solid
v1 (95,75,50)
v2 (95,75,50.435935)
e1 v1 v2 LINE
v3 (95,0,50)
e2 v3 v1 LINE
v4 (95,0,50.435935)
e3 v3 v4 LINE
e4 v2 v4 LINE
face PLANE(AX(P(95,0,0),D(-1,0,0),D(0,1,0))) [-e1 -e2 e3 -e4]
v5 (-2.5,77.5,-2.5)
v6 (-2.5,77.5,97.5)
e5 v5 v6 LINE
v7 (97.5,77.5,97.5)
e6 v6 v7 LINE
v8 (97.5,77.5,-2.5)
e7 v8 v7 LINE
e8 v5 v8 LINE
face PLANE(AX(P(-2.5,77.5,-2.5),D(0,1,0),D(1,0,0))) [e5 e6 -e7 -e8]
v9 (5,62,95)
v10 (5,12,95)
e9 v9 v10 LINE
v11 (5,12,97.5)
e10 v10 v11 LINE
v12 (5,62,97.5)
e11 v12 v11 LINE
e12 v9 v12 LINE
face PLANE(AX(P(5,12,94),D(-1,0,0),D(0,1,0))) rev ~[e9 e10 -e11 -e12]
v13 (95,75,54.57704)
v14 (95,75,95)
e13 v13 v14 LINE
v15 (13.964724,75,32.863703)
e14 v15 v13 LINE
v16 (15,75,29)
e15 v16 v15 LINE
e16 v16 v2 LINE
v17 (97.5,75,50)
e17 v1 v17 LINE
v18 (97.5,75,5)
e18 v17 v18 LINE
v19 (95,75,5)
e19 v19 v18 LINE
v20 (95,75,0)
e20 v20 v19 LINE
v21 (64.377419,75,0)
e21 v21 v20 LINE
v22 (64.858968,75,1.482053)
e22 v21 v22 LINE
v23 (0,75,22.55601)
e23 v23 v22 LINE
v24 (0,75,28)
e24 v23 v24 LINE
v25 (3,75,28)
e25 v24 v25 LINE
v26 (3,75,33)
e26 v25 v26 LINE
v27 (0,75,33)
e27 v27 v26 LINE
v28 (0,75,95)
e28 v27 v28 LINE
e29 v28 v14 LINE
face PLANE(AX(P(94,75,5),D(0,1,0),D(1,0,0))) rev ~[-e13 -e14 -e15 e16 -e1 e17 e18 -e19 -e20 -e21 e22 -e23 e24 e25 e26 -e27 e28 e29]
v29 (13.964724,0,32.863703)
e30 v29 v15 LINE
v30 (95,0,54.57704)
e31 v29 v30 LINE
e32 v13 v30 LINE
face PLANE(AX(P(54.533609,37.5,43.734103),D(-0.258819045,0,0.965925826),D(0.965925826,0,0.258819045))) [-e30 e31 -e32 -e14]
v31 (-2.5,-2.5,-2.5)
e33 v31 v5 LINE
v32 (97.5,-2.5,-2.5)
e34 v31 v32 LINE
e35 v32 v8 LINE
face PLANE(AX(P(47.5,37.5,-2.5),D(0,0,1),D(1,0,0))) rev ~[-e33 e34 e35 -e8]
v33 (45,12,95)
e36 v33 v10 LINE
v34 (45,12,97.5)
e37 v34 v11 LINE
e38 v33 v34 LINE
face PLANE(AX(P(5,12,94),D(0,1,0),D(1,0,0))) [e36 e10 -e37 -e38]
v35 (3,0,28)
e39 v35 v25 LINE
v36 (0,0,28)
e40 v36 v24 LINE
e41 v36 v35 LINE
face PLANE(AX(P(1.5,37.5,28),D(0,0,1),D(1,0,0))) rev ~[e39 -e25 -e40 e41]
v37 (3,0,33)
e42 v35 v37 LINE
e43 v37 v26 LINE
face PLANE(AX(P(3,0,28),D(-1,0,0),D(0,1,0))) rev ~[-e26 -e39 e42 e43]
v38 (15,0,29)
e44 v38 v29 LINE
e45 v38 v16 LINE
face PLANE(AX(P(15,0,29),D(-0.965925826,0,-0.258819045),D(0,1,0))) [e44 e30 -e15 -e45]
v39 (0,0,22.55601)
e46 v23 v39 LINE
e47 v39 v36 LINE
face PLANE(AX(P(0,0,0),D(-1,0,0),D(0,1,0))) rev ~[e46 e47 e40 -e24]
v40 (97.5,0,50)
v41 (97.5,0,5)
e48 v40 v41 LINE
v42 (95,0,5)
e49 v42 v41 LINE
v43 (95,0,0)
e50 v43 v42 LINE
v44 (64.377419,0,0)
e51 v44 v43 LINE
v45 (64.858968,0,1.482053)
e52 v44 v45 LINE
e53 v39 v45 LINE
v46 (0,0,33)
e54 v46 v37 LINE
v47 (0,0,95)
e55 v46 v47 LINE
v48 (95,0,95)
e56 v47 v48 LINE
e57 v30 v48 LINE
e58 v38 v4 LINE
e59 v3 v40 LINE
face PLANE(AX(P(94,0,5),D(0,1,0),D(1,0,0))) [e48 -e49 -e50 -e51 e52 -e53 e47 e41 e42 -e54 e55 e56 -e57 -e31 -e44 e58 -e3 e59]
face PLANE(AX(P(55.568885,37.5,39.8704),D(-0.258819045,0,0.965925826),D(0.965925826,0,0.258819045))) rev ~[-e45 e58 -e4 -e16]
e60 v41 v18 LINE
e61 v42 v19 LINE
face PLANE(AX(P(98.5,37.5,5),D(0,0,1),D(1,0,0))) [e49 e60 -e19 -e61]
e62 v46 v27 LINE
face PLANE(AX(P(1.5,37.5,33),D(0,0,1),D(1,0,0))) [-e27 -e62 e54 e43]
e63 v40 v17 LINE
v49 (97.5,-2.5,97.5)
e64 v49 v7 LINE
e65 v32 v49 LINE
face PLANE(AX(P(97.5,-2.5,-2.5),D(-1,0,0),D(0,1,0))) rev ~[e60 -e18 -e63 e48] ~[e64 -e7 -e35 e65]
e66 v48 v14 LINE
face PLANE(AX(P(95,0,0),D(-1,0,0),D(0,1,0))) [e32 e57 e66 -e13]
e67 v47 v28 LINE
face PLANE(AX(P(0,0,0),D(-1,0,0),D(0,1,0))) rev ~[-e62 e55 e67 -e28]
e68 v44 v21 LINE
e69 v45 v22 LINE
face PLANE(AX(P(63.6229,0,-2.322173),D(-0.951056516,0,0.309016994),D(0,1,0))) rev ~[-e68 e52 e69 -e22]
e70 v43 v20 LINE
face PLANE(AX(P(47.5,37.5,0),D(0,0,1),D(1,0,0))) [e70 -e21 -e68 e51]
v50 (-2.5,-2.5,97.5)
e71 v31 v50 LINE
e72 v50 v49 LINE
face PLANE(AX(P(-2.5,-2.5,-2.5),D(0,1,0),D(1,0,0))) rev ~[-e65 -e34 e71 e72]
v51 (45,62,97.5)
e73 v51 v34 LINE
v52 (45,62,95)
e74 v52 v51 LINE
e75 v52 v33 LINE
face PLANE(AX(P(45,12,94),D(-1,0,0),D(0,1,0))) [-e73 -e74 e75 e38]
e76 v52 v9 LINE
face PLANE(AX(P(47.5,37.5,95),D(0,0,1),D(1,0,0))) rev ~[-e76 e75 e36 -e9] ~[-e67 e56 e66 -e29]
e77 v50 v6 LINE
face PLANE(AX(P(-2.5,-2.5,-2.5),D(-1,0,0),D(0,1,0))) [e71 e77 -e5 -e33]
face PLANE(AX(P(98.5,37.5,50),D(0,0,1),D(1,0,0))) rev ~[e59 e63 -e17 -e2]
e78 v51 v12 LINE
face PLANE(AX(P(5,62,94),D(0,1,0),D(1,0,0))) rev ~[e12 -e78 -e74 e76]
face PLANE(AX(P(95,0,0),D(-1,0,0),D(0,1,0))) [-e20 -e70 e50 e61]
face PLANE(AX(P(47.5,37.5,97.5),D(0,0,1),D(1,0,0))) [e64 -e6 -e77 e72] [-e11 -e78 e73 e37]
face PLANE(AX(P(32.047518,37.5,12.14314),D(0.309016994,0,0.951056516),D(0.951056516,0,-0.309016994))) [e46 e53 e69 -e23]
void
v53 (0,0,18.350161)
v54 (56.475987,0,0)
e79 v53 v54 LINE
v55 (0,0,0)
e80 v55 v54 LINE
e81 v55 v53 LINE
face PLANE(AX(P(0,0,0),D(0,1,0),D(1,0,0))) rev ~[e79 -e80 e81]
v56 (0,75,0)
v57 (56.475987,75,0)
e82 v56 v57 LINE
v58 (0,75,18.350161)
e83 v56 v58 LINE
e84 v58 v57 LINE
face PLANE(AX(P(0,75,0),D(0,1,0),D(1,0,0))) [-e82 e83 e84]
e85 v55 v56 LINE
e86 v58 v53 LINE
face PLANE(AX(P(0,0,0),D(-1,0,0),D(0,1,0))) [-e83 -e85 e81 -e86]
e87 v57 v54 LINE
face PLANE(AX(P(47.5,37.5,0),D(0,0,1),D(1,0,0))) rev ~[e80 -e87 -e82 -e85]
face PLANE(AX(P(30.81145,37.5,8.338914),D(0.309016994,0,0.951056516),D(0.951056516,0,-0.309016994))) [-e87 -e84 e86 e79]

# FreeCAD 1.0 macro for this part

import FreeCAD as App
import Part
import Sketcher

doc = App.newDocument("Part")
body = doc.addObject("PartDesign::Body", "Body")

sketch1 = body.newObject("Sketcher::SketchObject", "Sketch")
sketch1.AttachmentSupport = (doc.getObject("XY_Plane"), [""])
sketch1.MapMode = "FlatFace"
sketch1.AttachmentOffset = App.Placement(App.Vector(0, 0, 5), App.Rotation())
sketch1.addGeometry([
    Part.LineSegment(App.Vector(94, 75, 0), App.Vector(94, 0, 0)),
    Part.LineSegment(App.Vector(94, 0, 0), App.Vector(103, 0, 0)),
    Part.LineSegment(App.Vector(103, 0, 0), App.Vector(103, 75, 0)),
    Part.LineSegment(App.Vector(103, 75, 0), App.Vector(94, 75, 0)),
], False)
sketch1.addConstraint([
    Sketcher.Constraint("Coincident", 0, 2, 1, 1),
    Sketcher.Constraint("Coincident", 1, 2, 2, 1),
    Sketcher.Constraint("Coincident", 2, 2, 3, 1),
    Sketcher.Constraint("Coincident", 3, 2, 0, 1),
    Sketcher.Constraint("Vertical", 0),
    Sketcher.Constraint("Horizontal", 1),
    Sketcher.Constraint("Vertical", 2),
    Sketcher.Constraint("Horizontal", 3),
    Sketcher.Constraint("PointOnObject", 0, 2, -1),
    Sketcher.Constraint("DistanceX", 1, 1, 1, 2, 9.0),
    Sketcher.Constraint("DistanceY", 0, 2, 0, 1, 75.0),
    Sketcher.Constraint("DistanceX", -1, 1, 0, 2, 94.0),
])
pad1 = body.newObject("PartDesign::Pad", "Pad")
pad1.Profile = sketch1
pad1.Length = 45
body2 = doc.addObject("PartDesign::Body", "Body001")

sketch2 = body2.newObject("Sketcher::SketchObject", "Sketch001")
sketch2.AttachmentSupport = (doc.getObject("XY_Plane001"), [""])
sketch2.MapMode = "FlatFace"
sketch2.AttachmentOffset = App.Placement(App.Vector(0, 0, 94), App.Rotation())
sketch2.addGeometry([
    Part.LineSegment(App.Vector(5, 62, 0), App.Vector(5, 12, 0)),
    Part.LineSegment(App.Vector(5, 12, 0), App.Vector(45, 12, 0)),
    Part.LineSegment(App.Vector(45, 12, 0), App.Vector(45, 62, 0)),
    Part.LineSegment(App.Vector(45, 62, 0), App.Vector(5, 62, 0)),
], False)
sketch2.addConstraint([
    Sketcher.Constraint("Coincident", 0, 2, 1, 1),
    Sketcher.Constraint("Coincident", 1, 2, 2, 1),
    Sketcher.Constraint("Coincident", 2, 2, 3, 1),
    Sketcher.Constraint("Coincident", 3, 2, 0, 1),
    Sketcher.Constraint("Vertical", 0),
    Sketcher.Constraint("Horizontal", 1),
    Sketcher.Constraint("Vertical", 2),
    Sketcher.Constraint("Horizontal", 3),
    Sketcher.Constraint("DistanceX", 1, 1, 1, 2, 40.0),
    Sketcher.Constraint("DistanceY", 0, 2, 0, 1, 50.0),
    Sketcher.Constraint("DistanceX", -1, 1, 0, 2, 5.0),
    Sketcher.Constraint("DistanceY", -1, 1, 0, 2, 12.0),
])
pad2 = body2.newObject("PartDesign::Pad", "Pad001")
pad2.Profile = sketch2
pad2.Length = 5
body3 = doc.addObject("PartDesign::Body", "Body002")

sketch3 = body3.newObject("Sketcher::SketchObject", "Sketch002")
sketch3.AttachmentSupport = (doc.getObject("XY_Plane002"), [""])
sketch3.MapMode = "FlatFace"
sketch3.addGeometry([
    Part.LineSegment(App.Vector(0, 75, 0), App.Vector(0, 0, 0)),
    Part.LineSegment(App.Vector(0, 0, 0), App.Vector(95, 0, 0)),
    Part.LineSegment(App.Vector(95, 0, 0), App.Vector(95, 75, 0)),
    Part.LineSegment(App.Vector(95, 75, 0), App.Vector(0, 75, 0)),
], False)
sketch3.addConstraint([
    Sketcher.Constraint("Coincident", 0, 2, 1, 1),
    Sketcher.Constraint("Coincident", 1, 2, 2, 1),
    Sketcher.Constraint("Coincident", 2, 2, 3, 1),
    Sketcher.Constraint("Coincident", 3, 2, 0, 1),
    Sketcher.Constraint("Vertical", 0),
    Sketcher.Constraint("Horizontal", 1),
    Sketcher.Constraint("Vertical", 2),
    Sketcher.Constraint("Horizontal", 3),
    Sketcher.Constraint("Coincident", 0, 2, -1, 1),
    Sketcher.Constraint("DistanceX", 1, 1, 1, 2, 95.0),
    Sketcher.Constraint("DistanceY", 0, 2, 0, 1, 75.0),
])
pad3 = body3.newObject("PartDesign::Pad", "Pad002")
pad3.Profile = sketch3
pad3.Length = 95
body4 = doc.addObject("PartDesign::Body", "Body003")

sketch4 = body4.newObject("Sketcher::SketchObject", "Sketch003")
sketch4.AttachmentSupport = (doc.getObject("XY_Plane003"), [""])
sketch4.MapMode = "FlatFace"
sketch4.AttachmentOffset = App.Placement(App.Vector(0, 0, -2.5), App.Rotation())
sketch4.addGeometry([
    Part.LineSegment(App.Vector(-2, 78, 0), App.Vector(-2, -2, 0)),
    Part.LineSegment(App.Vector(-2, -2, 0), App.Vector(98, -2, 0)),
    Part.LineSegment(App.Vector(98, -2, 0), App.Vector(98, 78, 0)),
    Part.LineSegment(App.Vector(98, 78, 0), App.Vector(-2, 78, 0)),
], False)
sketch4.addConstraint([
    Sketcher.Constraint("Coincident", 0, 2, 1, 1),
    Sketcher.Constraint("Coincident", 1, 2, 2, 1),
    Sketcher.Constraint("Coincident", 2, 2, 3, 1),
    Sketcher.Constraint("Coincident", 3, 2, 0, 1),
    Sketcher.Constraint("Vertical", 0),
    Sketcher.Constraint("Horizontal", 1),
    Sketcher.Constraint("Vertical", 2),
    Sketcher.Constraint("Horizontal", 3),
    Sketcher.Constraint("DistanceX", 1, 1, 1, 2, 100.0),
    Sketcher.Constraint("DistanceY", 0, 2, 0, 1, 80.0),
    Sketcher.Constraint("DistanceX", 0, 2, -1, 1, 2.5),
    Sketcher.Constraint("DistanceY", 0, 2, -1, 1, 2.5),
])
pad4 = body4.newObject("PartDesign::Pad", "Pad003")
pad4.Profile = sketch4
pad4.Length = 100
doc.recompute()

boolean = body4.newObject("PartDesign::Boolean", "Boolean")
boolean.Type = "Cut"
boolean.addObjects([body3])
doc.recompute()

boolean2 = body4.newObject("PartDesign::Boolean", "Boolean001")
boolean2.Type = "Cut"
boolean2.addObjects([body2])
body5 = doc.addObject("PartDesign::Body", "Body004")

sketch5 = body5.newObject("Sketcher::SketchObject", "Sketch004")
sketch5.AttachmentSupport = (doc.getObject("XY_Plane004"), [""])
sketch5.MapMode = "FlatFace"
sketch5.addGeometry([
    Part.LineSegment(App.Vector(0, 75, 0), App.Vector(0, 0, 0)),
    Part.LineSegment(App.Vector(0, 0, 0), App.Vector(84, 0, 0)),
    Part.LineSegment(App.Vector(84, 0, 0), App.Vector(84, 75, 0)),
    Part.LineSegment(App.Vector(84, 75, 0), App.Vector(0, 75, 0)),
], False)
sketch5.addConstraint([
    Sketcher.Constraint("Coincident", 0, 2, 1, 1),
    Sketcher.Constraint("Coincident", 1, 2, 2, 1),
    Sketcher.Constraint("Coincident", 2, 2, 3, 1),
    Sketcher.Constraint("Coincident", 3, 2, 0, 1),
    Sketcher.Constraint("Vertical", 0),
    Sketcher.Constraint("Horizontal", 1),
    Sketcher.Constraint("Vertical", 2),
    Sketcher.Constraint("Horizontal", 3),
    Sketcher.Constraint("Coincident", 0, 2, -1, 1),
    Sketcher.Constraint("DistanceX", 1, 1, 1, 2, 84.0),
    Sketcher.Constraint("DistanceY", 0, 2, 0, 1, 75.0),
])
pad5 = body5.newObject("PartDesign::Pad", "Pad004")
pad5.Profile = sketch5
pad5.Length = 4
body6 = doc.addObject("PartDesign::Body", "Body005")
doc.recompute()

body5.Placement = App.Placement(App.Vector(0, 0, 0), App.Rotation(App.Vector(0, 1, 0), 345))
boolean3 = body6.newObject("PartDesign::Boolean", "Boolean002")
boolean3.Type = "Fuse"
boolean3.addObjects([body5])
body7 = doc.addObject("PartDesign::Body", "Body006")
doc.recompute()

body6.Placement = App.Placement(App.Vector(15, 0, 29), App.Rotation(App.Vector(0, 0, 1), 0))
boolean4 = body7.newObject("PartDesign::Boolean", "Boolean003")
boolean4.Type = "Fuse"
boolean4.addObjects([body6])
doc.recompute()

boolean5 = body7.newObject("PartDesign::Boolean", "Boolean004")
boolean5.Type = "Fuse"
boolean5.addObjects([body4])
body8 = doc.addObject("PartDesign::Body", "Body007")

sketch6 = body8.newObject("Sketcher::SketchObject", "Sketch005")
sketch6.AttachmentSupport = (doc.getObject("XY_Plane007"), [""])
sketch6.MapMode = "FlatFace"
sketch6.AttachmentOffset = App.Placement(App.Vector(0, 0, 28), App.Rotation())
sketch6.addGeometry([
    Part.LineSegment(App.Vector(0, 75, 0), App.Vector(0, 0, 0)),
    Part.LineSegment(App.Vector(0, 0, 0), App.Vector(3, 0, 0)),
    Part.LineSegment(App.Vector(3, 0, 0), App.Vector(3, 75, 0)),
    Part.LineSegment(App.Vector(3, 75, 0), App.Vector(0, 75, 0)),
], False)
sketch6.addConstraint([
    Sketcher.Constraint("Coincident", 0, 2, 1, 1),
    Sketcher.Constraint("Coincident", 1, 2, 2, 1),
    Sketcher.Constraint("Coincident", 2, 2, 3, 1),
    Sketcher.Constraint("Coincident", 3, 2, 0, 1),
    Sketcher.Constraint("Vertical", 0),
    Sketcher.Constraint("Horizontal", 1),
    Sketcher.Constraint("Vertical", 2),
    Sketcher.Constraint("Horizontal", 3),
    Sketcher.Constraint("Coincident", 0, 2, -1, 1),
    Sketcher.Constraint("DistanceX", 1, 1, 1, 2, 3.0),
    Sketcher.Constraint("DistanceY", 0, 2, 0, 1, 75.0),
])
pad6 = body8.newObject("PartDesign::Pad", "Pad005")
pad6.Profile = sketch6
pad6.Length = 5
doc.recompute()

boolean6 = body8.newObject("PartDesign::Boolean", "Boolean005")
boolean6.Type = "Fuse"
boolean6.addObjects([body7])
body9 = doc.addObject("PartDesign::Body", "Body008")

sketch7 = body9.newObject("Sketcher::SketchObject", "Sketch006")
sketch7.AttachmentSupport = (doc.getObject("XY_Plane008"), [""])
sketch7.MapMode = "FlatFace"
sketch7.addGeometry([
    Part.LineSegment(App.Vector(0, 75, 0), App.Vector(0, 0, 0)),
    Part.LineSegment(App.Vector(0, 0, 0), App.Vector(69, 0, 0)),
    Part.LineSegment(App.Vector(69, 0, 0), App.Vector(69, 75, 0)),
    Part.LineSegment(App.Vector(69, 75, 0), App.Vector(0, 75, 0)),
], False)
sketch7.addConstraint([
    Sketcher.Constraint("Coincident", 0, 2, 1, 1),
    Sketcher.Constraint("Coincident", 1, 2, 2, 1),
    Sketcher.Constraint("Coincident", 2, 2, 3, 1),
    Sketcher.Constraint("Coincident", 3, 2, 0, 1),
    Sketcher.Constraint("Vertical", 0),
    Sketcher.Constraint("Horizontal", 1),
    Sketcher.Constraint("Vertical", 2),
    Sketcher.Constraint("Horizontal", 3),
    Sketcher.Constraint("Coincident", 0, 2, -1, 1),
    Sketcher.Constraint("DistanceX", 1, 1, 1, 2, 69.0),
    Sketcher.Constraint("DistanceY", 0, 2, 0, 1, 75.0),
])
pad7 = body9.newObject("PartDesign::Pad", "Pad006")
pad7.Profile = sketch7
pad7.Length = 4
body10 = doc.addObject("PartDesign::Body", "Body009")
doc.recompute()

body9.Placement = App.Placement(App.Vector(0, 0, 0), App.Rotation(App.Vector(0, 1, 0), 18))
boolean7 = body10.newObject("PartDesign::Boolean", "Boolean006")
boolean7.Type = "Fuse"
boolean7.addObjects([body9])
body11 = doc.addObject("PartDesign::Body", "Body010")
doc.recompute()

body10.Placement = App.Placement(App.Vector(-2, 0, 19), App.Rotation(App.Vector(0, 0, 1), 0))
boolean8 = body11.newObject("PartDesign::Boolean", "Boolean007")
boolean8.Type = "Fuse"
boolean8.addObjects([body10])
doc.recompute()

boolean9 = body11.newObject("PartDesign::Boolean", "Boolean008")
boolean9.Type = "Fuse"
boolean9.addObjects([body8])
doc.recompute()

boolean10 = body11.newObject("PartDesign::Boolean", "Boolean009")
boolean10.Type = "Cut"
boolean10.addObjects([body])

doc.recompute()
